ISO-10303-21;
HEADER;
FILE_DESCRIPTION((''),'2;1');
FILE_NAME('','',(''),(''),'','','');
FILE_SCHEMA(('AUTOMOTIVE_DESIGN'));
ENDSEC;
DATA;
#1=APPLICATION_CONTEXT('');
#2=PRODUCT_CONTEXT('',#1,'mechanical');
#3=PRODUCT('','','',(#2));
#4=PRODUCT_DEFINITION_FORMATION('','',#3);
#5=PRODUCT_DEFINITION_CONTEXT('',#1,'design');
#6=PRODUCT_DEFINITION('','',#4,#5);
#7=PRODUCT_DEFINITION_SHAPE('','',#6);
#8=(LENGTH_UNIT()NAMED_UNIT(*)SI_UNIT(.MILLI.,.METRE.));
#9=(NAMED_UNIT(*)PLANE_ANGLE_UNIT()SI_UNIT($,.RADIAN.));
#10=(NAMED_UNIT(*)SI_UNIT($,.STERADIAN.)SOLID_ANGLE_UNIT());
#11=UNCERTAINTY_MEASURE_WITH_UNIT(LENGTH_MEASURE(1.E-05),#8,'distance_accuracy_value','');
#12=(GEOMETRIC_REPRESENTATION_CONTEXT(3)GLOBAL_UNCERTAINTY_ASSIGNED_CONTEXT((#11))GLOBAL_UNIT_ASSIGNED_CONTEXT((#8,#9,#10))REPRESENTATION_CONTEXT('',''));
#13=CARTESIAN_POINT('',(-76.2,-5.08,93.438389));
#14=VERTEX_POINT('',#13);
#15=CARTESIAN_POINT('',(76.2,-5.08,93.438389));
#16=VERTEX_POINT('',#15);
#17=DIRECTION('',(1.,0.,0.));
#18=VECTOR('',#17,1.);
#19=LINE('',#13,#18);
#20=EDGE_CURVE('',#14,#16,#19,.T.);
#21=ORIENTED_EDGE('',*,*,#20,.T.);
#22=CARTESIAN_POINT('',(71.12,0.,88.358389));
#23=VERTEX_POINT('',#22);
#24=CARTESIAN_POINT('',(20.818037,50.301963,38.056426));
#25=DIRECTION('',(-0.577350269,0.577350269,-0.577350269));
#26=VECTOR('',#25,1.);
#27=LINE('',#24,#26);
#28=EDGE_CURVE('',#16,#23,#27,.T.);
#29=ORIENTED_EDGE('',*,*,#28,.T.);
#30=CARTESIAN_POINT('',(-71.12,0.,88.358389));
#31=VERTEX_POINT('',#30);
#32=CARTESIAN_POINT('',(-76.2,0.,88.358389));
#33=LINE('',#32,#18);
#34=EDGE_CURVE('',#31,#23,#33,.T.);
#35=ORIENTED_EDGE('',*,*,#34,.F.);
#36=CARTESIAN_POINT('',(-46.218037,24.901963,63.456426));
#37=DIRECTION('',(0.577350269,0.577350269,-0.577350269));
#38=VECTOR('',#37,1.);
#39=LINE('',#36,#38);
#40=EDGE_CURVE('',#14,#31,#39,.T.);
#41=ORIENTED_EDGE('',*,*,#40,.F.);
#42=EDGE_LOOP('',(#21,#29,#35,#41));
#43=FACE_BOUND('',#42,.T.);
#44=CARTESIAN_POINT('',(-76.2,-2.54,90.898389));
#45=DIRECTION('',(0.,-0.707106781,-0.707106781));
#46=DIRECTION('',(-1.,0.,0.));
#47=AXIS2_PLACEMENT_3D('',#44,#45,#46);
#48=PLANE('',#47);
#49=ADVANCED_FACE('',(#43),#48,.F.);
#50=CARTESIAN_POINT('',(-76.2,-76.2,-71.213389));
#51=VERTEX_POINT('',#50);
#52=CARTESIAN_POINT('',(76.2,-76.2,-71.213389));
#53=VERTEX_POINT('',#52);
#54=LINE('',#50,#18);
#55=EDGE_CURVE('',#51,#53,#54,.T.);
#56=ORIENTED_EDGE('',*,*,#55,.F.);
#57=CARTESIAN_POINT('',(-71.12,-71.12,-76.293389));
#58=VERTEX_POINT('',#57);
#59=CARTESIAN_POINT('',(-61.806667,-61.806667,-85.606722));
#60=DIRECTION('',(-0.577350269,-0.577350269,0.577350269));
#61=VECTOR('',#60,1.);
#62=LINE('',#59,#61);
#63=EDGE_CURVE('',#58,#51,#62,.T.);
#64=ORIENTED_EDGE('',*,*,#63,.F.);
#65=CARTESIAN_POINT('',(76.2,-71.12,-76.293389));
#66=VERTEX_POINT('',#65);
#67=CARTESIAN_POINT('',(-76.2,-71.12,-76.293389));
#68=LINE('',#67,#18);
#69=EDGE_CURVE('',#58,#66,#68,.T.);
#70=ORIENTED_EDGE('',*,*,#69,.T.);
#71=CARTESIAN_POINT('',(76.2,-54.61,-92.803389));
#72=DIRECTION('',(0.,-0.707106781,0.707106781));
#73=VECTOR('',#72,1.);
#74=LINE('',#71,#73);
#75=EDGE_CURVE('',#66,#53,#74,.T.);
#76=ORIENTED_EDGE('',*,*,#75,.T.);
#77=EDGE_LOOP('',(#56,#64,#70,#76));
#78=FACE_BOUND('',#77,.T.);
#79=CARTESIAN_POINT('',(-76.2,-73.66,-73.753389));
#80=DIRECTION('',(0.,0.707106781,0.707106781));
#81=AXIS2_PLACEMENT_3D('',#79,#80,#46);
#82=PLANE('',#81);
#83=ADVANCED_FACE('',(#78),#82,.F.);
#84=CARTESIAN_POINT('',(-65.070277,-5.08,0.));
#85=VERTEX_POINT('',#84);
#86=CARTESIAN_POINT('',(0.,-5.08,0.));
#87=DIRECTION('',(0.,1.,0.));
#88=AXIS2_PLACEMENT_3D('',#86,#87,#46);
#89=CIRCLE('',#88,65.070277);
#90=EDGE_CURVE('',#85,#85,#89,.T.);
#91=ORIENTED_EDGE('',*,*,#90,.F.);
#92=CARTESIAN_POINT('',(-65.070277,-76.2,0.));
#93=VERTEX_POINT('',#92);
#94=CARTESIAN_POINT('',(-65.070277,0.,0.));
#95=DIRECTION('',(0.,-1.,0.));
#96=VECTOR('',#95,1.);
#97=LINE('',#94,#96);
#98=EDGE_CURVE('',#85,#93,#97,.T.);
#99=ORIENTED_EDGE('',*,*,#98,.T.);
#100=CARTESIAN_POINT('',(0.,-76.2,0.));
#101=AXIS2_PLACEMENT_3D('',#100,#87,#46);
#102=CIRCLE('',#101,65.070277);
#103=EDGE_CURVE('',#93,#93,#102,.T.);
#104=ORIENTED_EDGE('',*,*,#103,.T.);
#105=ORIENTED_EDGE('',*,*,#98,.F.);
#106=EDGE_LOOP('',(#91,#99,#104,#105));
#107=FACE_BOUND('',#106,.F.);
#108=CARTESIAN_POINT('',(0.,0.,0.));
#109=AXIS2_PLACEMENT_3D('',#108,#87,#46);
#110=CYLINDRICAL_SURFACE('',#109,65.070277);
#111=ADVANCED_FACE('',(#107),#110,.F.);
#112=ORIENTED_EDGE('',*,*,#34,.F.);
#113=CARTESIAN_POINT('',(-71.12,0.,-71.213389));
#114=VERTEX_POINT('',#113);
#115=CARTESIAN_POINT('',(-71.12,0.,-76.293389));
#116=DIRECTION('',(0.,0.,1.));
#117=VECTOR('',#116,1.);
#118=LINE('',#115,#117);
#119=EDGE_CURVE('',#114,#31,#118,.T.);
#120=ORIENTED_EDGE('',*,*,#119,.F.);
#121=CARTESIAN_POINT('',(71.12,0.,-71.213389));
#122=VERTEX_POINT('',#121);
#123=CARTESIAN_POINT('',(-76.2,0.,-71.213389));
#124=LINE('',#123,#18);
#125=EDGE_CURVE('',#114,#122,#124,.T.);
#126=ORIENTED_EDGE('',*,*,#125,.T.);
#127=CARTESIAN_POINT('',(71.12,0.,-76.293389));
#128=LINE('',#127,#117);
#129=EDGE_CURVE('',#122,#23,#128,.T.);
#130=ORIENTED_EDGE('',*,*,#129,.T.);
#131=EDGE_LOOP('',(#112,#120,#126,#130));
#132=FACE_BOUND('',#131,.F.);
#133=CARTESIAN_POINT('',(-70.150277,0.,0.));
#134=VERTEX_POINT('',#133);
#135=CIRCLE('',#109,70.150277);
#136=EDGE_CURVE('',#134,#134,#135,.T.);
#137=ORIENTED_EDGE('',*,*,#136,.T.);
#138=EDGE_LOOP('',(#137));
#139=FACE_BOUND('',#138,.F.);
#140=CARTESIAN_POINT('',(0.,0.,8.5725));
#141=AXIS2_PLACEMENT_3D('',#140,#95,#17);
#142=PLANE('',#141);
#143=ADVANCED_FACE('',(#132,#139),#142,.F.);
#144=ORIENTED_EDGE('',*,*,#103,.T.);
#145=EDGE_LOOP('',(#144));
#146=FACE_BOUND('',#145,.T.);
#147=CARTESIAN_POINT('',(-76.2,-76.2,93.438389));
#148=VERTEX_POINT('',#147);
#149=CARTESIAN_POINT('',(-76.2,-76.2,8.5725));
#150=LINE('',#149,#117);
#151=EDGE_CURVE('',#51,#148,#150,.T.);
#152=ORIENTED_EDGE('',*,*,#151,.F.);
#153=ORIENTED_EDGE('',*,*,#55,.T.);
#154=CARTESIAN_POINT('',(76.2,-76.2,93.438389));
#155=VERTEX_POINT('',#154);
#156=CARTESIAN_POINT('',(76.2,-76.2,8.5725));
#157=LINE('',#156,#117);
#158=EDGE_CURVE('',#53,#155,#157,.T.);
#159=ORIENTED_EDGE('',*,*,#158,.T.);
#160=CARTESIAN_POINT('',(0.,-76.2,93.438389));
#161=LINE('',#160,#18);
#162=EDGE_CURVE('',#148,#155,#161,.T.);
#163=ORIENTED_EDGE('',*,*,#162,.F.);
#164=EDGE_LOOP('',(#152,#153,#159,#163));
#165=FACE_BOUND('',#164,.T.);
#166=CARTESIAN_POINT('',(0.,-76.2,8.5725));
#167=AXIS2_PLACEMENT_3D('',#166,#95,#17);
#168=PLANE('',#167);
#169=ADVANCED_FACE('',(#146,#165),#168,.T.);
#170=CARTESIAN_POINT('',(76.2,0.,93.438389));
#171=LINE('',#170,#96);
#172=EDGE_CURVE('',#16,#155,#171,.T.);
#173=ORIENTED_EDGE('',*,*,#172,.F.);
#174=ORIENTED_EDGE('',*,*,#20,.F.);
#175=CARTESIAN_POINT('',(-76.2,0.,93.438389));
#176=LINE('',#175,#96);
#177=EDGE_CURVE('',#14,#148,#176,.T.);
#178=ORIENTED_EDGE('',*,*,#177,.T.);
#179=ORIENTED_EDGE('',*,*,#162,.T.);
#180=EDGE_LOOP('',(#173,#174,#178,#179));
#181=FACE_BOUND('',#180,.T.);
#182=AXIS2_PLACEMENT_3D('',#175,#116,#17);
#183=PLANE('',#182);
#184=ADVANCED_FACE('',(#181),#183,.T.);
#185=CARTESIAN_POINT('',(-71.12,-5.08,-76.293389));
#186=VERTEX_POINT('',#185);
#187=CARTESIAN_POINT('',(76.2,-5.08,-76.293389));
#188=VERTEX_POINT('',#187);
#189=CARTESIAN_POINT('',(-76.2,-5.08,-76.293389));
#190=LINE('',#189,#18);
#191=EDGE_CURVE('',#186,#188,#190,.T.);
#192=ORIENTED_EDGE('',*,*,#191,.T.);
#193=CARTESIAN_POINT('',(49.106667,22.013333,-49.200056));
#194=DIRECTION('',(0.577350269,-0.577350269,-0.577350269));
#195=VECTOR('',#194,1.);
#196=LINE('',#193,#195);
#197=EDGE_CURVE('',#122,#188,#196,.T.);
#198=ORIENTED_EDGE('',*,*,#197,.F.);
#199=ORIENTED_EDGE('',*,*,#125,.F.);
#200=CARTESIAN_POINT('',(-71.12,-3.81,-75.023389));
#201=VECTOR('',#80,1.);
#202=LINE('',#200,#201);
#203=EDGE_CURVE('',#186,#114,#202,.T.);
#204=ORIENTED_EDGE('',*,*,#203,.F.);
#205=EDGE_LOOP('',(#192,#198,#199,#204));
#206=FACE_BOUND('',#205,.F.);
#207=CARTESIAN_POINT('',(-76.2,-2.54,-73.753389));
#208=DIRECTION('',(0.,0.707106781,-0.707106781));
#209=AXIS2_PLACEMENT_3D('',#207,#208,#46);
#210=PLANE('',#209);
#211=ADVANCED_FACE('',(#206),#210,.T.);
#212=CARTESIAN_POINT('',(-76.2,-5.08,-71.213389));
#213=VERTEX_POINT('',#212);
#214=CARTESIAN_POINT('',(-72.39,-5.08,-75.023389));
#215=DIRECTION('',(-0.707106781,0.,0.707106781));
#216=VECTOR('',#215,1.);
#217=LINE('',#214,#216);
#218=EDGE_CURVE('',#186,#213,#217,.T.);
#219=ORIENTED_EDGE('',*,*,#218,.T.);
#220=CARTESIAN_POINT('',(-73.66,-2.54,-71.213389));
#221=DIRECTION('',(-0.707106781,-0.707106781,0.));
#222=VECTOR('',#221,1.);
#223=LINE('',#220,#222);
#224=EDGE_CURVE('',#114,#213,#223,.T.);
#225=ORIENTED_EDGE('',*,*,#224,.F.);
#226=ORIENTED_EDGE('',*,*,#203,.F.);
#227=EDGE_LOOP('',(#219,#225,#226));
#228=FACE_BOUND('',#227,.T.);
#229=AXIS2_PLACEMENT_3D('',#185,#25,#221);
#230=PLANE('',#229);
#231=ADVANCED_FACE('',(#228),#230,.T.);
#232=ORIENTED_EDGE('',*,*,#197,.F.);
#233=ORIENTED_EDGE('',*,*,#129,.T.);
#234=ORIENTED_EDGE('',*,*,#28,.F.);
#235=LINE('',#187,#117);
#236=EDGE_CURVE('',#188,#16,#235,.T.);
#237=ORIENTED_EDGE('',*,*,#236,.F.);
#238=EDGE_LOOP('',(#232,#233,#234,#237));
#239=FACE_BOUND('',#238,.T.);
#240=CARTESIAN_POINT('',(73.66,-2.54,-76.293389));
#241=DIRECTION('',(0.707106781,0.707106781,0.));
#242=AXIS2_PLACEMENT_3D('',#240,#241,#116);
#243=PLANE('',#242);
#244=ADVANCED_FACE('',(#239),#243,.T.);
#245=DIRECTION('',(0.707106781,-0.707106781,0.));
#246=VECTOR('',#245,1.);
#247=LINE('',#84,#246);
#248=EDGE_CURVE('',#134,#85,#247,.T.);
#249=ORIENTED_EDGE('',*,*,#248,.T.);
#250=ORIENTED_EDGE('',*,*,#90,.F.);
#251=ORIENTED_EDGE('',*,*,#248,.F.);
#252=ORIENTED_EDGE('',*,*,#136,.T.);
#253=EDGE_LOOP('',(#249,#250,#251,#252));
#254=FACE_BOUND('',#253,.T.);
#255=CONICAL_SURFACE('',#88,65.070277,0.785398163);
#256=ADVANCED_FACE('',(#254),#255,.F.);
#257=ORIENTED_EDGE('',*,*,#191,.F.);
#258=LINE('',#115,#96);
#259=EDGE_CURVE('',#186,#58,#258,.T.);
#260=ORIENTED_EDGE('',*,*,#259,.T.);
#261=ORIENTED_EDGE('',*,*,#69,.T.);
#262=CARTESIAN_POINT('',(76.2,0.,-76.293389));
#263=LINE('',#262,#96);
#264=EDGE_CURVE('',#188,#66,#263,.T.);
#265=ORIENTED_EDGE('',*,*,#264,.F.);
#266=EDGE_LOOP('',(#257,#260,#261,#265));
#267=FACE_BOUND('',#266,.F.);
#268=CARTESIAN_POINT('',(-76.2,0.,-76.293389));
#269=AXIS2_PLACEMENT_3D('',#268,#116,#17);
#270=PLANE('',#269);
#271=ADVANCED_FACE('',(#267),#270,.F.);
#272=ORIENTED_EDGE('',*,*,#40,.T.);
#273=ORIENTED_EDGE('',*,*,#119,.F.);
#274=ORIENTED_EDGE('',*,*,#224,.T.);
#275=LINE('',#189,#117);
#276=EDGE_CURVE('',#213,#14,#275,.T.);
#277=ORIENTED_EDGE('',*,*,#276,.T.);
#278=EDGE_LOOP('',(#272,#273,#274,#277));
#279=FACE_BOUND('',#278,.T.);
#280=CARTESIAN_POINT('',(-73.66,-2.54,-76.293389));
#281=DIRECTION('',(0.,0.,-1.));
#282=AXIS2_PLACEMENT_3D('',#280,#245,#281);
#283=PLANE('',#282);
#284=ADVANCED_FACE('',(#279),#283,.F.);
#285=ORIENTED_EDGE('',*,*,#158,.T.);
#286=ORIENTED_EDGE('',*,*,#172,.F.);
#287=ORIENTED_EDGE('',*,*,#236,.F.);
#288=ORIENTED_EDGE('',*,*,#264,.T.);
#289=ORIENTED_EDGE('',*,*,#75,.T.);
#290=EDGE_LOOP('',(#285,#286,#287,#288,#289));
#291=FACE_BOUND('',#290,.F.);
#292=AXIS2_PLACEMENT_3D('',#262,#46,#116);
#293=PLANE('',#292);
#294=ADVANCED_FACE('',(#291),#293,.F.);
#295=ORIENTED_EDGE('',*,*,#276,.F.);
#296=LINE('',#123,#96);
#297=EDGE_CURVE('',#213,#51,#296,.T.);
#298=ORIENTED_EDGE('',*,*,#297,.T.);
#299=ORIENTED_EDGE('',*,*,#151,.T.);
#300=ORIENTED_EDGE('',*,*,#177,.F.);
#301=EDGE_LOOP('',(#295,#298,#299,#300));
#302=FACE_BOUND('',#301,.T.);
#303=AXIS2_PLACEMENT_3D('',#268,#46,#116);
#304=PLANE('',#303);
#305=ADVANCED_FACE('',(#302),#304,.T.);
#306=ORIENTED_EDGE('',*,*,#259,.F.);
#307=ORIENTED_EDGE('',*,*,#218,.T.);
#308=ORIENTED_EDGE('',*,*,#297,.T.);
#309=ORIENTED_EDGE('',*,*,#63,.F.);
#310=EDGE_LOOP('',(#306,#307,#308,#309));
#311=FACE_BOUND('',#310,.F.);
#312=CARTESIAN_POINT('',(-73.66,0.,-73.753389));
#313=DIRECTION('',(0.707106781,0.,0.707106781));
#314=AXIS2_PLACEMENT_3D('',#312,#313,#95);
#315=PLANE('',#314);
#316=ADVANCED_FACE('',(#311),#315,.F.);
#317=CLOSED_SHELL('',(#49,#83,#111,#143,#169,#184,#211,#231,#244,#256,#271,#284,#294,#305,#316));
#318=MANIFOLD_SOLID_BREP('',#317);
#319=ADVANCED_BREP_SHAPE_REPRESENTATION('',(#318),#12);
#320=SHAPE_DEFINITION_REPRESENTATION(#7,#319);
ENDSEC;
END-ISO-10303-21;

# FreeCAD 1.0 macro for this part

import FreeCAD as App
import Part
import Sketcher
Q = App.Units.Quantity


def edges_at(feature, points):
    """Names of the edges that pass closest to the given points."""
    edges = feature.Shape.Edges
    near = lambda p: min(range(len(edges)), key=lambda i: edges[i].distToShape(Part.Vertex(*p))[0])
    return sorted({f"Edge{near(p) + 1}" for p in points})

doc = App.newDocument("Part")
params = doc.addObject("Spreadsheet::Sheet", "Params")
for row, (alias, value) in enumerate([
    ("sketch1_width", "6 in"),
    ("pad1_length", "3 in"),
    ("chamfer_size", "0.2 in"),
], start=1):
    params.set(f"A{row}", alias)
    params.set(f"B{row}", "=" + value)
    params.setAlias(f"B{row}", alias)

body = doc.addObject("PartDesign::Body", "Body")

# Sketch on XZ plane
sketch1 = body.newObject("Sketcher::SketchObject", "Sketch")
sketch1.AttachmentSupport = (doc.getObject("XZ_Plane"), [""])
sketch1.MapMode = "FlatFace"
sketch1.addGeometry(Part.LineSegment(App.Vector(-76, 93, 0), App.Vector(-76, -76, 0)), False)
sketch1.addGeometry(Part.LineSegment(App.Vector(-76, -76, 0), App.Vector(76, -76, 0)), False)
sketch1.addGeometry(Part.LineSegment(App.Vector(76, -76, 0), App.Vector(76, 93, 0)), False)
sketch1.addGeometry(Part.LineSegment(App.Vector(76, 93, 0), App.Vector(-76, 93, 0)), False)
sketch1.addConstraint(Sketcher.Constraint("Coincident", 0, 2, 1, 1))
sketch1.addConstraint(Sketcher.Constraint("Coincident", 1, 2, 2, 1))
sketch1.addConstraint(Sketcher.Constraint("Coincident", 2, 2, 3, 1))
sketch1.addConstraint(Sketcher.Constraint("Coincident", 3, 2, 0, 1))
sketch1.addConstraint(Sketcher.Constraint("Vertical", 0))
sketch1.addConstraint(Sketcher.Constraint("Horizontal", 1))
sketch1.addConstraint(Sketcher.Constraint("Vertical", 2))
sketch1.addConstraint(Sketcher.Constraint("Horizontal", 3))
sketch1.addConstraint(Sketcher.Constraint("DistanceX", 1, 1, 1, 2, Q("6 in")))
sketch1.addConstraint(Sketcher.Constraint("DistanceX", 0, 2, -1, 1, Q("3 in")))
sketch1.addConstraint(Sketcher.Constraint("DistanceY", 0, 2, 0, 1, 169.731778))
sketch1.addConstraint(Sketcher.Constraint("DistanceY", 0, 2, -1, 1, 76.293389))
sketch1.setExpression("Constraints[8]", "Params.sketch1_width")
pad1 = body.newObject("PartDesign::Pad", "Pad")
pad1.Profile = sketch1
pad1.setExpression("Length", "Params.pad1_length")

# Sketch on XZ plane
sketch2 = body.newObject("Sketcher::SketchObject", "Sketch001")
sketch2.AttachmentSupport = (doc.getObject("XZ_Plane"), [""])
sketch2.MapMode = "FlatFace"
sketch2.addGeometry(Part.Circle(App.Vector(0, 0, 0), App.Vector(0, 0, 1), 65), False)
sketch2.addConstraint(Sketcher.Constraint("Coincident", 0, 3, -1, 1))
sketch2.addConstraint(Sketcher.Constraint("Diameter", 0, 130.140554))
pocket1 = body.newObject("PartDesign::Pocket", "Pocket")
pocket1.Profile = sketch2
pocket1.Type = "ThroughAll"
pocket1.Reversed = True
doc.recompute()

chamfer = body.newObject("PartDesign::Chamfer", "Chamfer")
chamfer.Base = (pocket1, edges_at(pocket1, [
    (-76.2, 0, 8.572),
    (0, 0, 93.438),
    (76.2, 0, 8.572),
    (0, 0, -76.293),
    (65.07, 0, 0),
    (0, -76.2, -76.293),
    (-76.2, -38.1, -76.293),
]))
chamfer.setExpression("Size", "Params.chamfer_size")

doc.recompute()
